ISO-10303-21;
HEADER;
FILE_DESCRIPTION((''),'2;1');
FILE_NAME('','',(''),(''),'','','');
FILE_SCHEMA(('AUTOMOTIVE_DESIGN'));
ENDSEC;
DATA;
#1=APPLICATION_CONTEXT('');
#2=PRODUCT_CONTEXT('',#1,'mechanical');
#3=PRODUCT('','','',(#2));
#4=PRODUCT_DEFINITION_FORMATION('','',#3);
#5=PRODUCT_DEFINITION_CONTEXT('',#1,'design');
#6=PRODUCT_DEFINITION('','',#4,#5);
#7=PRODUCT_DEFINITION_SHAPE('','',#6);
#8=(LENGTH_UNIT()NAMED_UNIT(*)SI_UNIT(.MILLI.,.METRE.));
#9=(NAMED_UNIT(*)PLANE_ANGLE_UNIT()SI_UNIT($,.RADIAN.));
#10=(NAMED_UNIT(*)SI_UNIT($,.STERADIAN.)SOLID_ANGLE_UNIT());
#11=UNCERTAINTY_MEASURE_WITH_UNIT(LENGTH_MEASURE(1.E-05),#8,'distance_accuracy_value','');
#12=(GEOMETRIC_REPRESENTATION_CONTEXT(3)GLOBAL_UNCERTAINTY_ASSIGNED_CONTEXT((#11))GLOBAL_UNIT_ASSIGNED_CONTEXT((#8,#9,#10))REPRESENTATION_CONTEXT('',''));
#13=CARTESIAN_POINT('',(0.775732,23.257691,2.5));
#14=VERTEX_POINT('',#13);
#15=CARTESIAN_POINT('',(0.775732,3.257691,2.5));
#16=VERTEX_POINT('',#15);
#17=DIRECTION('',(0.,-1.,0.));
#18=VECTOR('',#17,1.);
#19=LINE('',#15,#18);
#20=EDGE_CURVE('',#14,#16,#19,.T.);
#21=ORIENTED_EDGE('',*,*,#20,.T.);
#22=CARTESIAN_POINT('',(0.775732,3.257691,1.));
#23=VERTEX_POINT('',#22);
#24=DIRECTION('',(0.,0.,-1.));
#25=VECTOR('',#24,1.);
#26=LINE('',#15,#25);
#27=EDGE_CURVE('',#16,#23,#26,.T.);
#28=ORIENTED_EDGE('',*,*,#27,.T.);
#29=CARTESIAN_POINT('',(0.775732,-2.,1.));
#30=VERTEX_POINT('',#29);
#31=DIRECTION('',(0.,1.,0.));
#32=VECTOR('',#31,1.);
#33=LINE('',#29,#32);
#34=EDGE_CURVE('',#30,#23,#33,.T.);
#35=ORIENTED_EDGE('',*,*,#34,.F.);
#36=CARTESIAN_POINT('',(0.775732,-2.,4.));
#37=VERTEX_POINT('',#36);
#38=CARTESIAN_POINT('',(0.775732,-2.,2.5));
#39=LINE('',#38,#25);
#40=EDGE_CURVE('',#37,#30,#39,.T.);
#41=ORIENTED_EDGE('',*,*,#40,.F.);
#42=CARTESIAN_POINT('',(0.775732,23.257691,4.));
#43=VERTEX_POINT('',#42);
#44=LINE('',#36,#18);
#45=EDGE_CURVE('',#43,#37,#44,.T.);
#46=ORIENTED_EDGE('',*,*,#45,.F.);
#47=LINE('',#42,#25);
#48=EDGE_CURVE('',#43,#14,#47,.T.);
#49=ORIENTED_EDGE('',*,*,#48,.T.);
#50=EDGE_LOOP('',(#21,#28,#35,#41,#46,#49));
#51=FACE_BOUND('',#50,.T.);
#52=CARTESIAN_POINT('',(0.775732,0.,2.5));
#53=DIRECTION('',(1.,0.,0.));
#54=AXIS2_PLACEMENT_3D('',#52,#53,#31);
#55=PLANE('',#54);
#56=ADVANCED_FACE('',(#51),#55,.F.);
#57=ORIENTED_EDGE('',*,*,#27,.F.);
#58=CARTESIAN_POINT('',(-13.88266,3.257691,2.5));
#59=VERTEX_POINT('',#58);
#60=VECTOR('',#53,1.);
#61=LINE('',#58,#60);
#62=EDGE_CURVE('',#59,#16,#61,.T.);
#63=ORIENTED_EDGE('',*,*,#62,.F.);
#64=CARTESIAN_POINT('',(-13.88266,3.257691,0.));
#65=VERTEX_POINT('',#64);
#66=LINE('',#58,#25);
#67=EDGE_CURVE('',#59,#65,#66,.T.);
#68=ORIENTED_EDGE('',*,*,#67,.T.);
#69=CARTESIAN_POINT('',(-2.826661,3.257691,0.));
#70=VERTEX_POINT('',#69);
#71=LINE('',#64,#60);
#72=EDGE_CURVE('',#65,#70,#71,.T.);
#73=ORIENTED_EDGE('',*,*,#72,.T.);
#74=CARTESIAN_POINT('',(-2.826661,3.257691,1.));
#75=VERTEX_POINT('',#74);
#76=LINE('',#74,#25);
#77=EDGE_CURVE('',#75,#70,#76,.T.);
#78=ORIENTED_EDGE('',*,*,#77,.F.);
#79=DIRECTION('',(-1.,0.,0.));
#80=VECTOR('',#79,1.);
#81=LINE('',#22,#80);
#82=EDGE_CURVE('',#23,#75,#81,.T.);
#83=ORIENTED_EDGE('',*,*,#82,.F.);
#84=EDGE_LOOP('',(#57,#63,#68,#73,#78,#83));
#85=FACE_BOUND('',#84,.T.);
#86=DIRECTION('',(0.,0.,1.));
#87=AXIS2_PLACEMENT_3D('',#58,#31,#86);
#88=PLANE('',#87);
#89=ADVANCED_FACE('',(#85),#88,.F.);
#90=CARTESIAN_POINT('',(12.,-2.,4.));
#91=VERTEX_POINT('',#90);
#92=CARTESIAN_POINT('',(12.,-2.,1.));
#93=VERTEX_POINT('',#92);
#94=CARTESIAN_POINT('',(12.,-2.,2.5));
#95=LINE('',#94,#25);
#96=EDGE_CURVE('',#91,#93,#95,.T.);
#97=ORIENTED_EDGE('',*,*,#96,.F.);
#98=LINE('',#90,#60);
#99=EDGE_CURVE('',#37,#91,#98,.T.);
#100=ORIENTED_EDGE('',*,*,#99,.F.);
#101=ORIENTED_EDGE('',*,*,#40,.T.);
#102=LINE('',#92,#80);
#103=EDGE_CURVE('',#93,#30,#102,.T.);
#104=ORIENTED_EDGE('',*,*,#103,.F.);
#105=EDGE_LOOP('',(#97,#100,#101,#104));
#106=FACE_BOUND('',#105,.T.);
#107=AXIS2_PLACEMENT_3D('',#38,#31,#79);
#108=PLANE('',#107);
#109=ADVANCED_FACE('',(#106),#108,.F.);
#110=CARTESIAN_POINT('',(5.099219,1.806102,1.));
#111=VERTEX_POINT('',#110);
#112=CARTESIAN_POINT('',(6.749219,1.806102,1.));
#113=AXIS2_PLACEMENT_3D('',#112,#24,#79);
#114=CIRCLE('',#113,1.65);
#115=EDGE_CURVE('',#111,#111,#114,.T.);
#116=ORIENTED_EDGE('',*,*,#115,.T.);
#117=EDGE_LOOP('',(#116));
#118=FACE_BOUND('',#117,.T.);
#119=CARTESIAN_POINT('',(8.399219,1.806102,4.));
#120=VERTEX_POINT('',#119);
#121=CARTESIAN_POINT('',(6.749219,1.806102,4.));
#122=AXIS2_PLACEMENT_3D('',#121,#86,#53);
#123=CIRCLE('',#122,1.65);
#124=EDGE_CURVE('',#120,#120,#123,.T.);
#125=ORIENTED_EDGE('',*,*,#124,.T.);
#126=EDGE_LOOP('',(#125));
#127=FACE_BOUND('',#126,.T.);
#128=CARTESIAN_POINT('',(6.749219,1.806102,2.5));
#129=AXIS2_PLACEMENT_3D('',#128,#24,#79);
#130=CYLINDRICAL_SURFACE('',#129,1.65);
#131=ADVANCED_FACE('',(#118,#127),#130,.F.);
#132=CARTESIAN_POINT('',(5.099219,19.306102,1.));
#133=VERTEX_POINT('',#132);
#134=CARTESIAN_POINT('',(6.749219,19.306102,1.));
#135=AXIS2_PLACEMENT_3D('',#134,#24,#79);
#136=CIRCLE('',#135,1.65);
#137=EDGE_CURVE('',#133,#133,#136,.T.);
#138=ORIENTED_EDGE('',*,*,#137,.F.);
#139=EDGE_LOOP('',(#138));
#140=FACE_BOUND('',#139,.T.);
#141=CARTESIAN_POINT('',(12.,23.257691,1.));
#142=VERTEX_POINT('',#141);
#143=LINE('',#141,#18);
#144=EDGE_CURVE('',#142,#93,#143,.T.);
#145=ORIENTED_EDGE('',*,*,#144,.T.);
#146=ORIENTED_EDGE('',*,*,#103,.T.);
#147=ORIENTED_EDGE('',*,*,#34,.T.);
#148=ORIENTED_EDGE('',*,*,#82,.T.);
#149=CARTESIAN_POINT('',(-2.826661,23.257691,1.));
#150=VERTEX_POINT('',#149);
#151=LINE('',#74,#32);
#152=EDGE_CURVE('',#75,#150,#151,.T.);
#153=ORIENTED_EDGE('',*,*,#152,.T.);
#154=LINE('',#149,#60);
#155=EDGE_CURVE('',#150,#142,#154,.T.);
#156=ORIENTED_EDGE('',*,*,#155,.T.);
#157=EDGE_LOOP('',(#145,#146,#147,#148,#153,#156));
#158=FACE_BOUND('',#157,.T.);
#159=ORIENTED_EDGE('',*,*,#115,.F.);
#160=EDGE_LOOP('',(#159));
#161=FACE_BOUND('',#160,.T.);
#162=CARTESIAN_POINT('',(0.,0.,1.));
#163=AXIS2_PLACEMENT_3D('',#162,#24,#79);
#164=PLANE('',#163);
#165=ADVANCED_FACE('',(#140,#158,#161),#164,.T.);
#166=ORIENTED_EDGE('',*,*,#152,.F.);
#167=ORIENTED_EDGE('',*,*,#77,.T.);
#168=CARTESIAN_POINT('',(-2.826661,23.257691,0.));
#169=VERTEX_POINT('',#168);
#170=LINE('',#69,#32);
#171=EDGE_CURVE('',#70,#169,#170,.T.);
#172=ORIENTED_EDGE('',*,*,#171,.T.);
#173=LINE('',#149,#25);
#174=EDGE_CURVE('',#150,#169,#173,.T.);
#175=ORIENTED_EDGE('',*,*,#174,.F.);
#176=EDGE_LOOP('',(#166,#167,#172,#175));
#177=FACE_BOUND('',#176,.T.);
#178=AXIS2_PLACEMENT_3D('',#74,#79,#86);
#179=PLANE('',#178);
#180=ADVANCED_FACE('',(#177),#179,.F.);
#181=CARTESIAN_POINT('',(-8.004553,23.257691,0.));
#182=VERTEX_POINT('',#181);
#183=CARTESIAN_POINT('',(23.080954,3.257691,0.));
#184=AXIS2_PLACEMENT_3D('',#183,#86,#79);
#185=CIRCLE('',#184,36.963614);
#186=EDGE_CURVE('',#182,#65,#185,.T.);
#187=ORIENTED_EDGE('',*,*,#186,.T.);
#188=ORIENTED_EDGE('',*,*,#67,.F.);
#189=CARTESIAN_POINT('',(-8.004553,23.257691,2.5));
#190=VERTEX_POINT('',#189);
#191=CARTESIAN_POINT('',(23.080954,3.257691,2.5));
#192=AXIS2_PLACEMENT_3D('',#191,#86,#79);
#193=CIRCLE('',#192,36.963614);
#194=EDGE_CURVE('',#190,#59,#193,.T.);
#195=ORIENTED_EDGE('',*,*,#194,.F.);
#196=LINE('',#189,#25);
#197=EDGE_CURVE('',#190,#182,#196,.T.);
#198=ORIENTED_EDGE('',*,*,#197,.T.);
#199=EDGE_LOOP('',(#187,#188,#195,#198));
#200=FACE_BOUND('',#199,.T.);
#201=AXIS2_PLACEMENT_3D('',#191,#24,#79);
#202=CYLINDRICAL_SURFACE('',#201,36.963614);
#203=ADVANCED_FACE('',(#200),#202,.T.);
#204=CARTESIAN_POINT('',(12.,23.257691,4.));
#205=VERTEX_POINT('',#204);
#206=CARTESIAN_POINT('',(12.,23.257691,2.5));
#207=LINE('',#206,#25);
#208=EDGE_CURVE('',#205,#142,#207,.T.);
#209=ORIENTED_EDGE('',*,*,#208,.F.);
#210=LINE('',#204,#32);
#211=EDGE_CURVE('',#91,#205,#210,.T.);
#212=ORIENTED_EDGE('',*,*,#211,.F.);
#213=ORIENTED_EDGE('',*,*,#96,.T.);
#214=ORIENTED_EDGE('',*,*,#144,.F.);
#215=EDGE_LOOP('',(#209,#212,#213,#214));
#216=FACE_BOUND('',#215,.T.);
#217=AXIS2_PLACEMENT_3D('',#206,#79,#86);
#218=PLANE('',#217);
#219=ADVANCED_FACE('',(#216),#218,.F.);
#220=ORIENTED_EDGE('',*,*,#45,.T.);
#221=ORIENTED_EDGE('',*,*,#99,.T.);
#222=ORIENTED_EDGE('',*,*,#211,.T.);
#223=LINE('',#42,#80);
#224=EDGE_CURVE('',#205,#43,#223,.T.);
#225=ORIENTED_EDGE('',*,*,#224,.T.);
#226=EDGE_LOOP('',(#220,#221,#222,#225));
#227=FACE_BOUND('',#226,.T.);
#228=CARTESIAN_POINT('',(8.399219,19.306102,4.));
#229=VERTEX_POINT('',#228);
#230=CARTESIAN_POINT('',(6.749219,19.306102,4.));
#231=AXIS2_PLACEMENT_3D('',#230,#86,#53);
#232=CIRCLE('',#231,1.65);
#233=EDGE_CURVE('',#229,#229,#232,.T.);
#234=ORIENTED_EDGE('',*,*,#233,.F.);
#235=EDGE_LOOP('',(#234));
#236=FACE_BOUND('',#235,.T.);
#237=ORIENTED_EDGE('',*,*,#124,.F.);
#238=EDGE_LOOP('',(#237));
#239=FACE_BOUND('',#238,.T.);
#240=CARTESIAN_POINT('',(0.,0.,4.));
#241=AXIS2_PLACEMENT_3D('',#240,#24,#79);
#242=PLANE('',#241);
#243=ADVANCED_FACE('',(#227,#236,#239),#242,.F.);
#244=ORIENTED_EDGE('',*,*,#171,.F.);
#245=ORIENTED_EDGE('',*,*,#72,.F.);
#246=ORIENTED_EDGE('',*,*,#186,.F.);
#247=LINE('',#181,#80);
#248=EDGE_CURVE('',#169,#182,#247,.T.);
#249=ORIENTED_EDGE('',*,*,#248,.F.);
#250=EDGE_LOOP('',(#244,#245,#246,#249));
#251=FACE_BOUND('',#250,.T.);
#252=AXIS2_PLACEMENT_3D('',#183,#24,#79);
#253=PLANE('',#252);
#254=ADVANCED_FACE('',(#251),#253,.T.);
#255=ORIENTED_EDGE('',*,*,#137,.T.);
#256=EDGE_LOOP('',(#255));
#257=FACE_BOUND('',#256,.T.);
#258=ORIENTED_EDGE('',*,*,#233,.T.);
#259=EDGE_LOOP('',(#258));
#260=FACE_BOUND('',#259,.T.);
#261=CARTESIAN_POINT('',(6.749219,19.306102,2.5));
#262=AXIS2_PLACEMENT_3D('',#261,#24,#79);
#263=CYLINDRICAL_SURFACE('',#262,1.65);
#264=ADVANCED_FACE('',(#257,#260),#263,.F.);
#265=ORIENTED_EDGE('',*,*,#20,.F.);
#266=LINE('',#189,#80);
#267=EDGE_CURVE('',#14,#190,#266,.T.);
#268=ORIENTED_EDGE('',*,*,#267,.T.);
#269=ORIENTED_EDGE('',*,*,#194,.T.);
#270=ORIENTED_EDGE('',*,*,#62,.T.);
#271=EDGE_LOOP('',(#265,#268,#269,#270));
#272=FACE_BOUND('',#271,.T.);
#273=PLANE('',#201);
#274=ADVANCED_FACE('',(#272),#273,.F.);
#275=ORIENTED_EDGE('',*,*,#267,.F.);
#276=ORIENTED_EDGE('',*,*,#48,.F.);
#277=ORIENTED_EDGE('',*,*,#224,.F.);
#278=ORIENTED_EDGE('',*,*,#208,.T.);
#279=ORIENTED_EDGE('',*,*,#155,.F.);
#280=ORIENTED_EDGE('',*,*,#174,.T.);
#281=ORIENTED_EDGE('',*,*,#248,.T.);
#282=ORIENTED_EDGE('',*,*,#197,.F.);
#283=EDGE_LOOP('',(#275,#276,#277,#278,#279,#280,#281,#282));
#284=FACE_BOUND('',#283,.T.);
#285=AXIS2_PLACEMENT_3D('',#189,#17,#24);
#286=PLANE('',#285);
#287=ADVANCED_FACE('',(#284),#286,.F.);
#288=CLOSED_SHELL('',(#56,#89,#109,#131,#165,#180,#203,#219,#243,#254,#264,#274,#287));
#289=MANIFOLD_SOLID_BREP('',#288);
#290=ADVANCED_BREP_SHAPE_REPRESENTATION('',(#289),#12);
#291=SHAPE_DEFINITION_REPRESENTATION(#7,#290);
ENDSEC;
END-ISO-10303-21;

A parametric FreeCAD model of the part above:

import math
import FreeCAD as App
import Part
import Sketcher
Q = App.Units.Quantity


def add_polygon(sketch, points):
    """Adds a closed chain of lines whose ends are joined by coincident constraints."""
    first, n = sketch.GeometryCount, len(points)
    for a, b in zip(points, points[1:] + points[:1]):
        sketch.addGeometry(Part.LineSegment(App.Vector(*a, 0), App.Vector(*b, 0)), False)
    for i in range(n):
        sketch.addConstraint(Sketcher.Constraint("Coincident", first + i, 2, first + (i + 1) % n, 1))

doc = App.newDocument("Part")
body = doc.addObject("PartDesign::Body", "Body")

sketch1 = doc.addObject("Sketcher::SketchObject", "Sketch")
body.addObject(sketch1)
sketch1.AttachmentSupport = (doc.XY_Plane, [""])
sketch1.MapMode = "FlatFace"
sketch1.addGeometry([
    Part.LineSegment(App.Vector(12, 23.3, 0), App.Vector(-8, 23.3, 0)),
    Part.ArcOfCircle(Part.Circle(App.Vector(23.1, 3.3, 0), App.Vector(0, 0, 1), 37), math.radians(147), math.radians(180)),
    Part.LineSegment(App.Vector(-13.9, 3.3, 0), App.Vector(0.8, 3.3, 0)),
    Part.LineSegment(App.Vector(0.8, 3.3, 0), App.Vector(0.8, -2, 0)),
    Part.LineSegment(App.Vector(0.8, -2, 0), App.Vector(12, -2, 0)),
    Part.LineSegment(App.Vector(12, -2, 0), App.Vector(12, 23.3, 0)),
    Part.Circle(App.Vector(6.7, 1.8, 0), App.Vector(0, 0, 1), 1.6),
    Part.Circle(App.Vector(6.7, 19.3, 0), App.Vector(0, 0, 1), 1.6),
], False)
sketch1.addConstraint([
    Sketcher.Constraint("Coincident", 0, 2, 1, 1),
    Sketcher.Constraint("Coincident", 1, 2, 2, 1),
    Sketcher.Constraint("Coincident", 2, 2, 3, 1),
    Sketcher.Constraint("Coincident", 3, 2, 4, 1),
    Sketcher.Constraint("Coincident", 4, 2, 5, 1),
    Sketcher.Constraint("Coincident", 5, 2, 0, 1),
    Sketcher.Constraint("Horizontal", 0),
    Sketcher.Constraint("Horizontal", 2),
    Sketcher.Constraint("Vertical", 3),
    Sketcher.Constraint("Horizontal", 4),
    Sketcher.Constraint("Vertical", 5),
    Sketcher.Constraint("Equal", 6, 7),
    Sketcher.Constraint("Vertical", 6, 3, 7, 3),
    Sketcher.Constraint("Diameter", 6, Q("3.3 mm")),
    Sketcher.Constraint("DistanceY", 3, 2, -1, 1, Q("2 mm")),
    Sketcher.Constraint("DistanceX", -1, 1, 4, 2, Q("12 mm")),
    Sketcher.Constraint("DistanceY", 1, 3, 0, 2, Q("20 mm")),
    Sketcher.Constraint("DistanceY", 1, 2, 0, 2, Q("20 mm")),
    Sketcher.Constraint("DistanceY", 6, 3, 7, 3, Q("17.5 mm")),
    Sketcher.Constraint("Radius", 1, Q("36.963614 mm")),
    Sketcher.Constraint("DistanceX", 2, 1, 2, 2, Q("14.658392 mm")),
    Sketcher.Constraint("DistanceX", 4, 1, 4, 2, Q("11.224268 mm")),
    Sketcher.Constraint("DistanceY", 3, 2, 3, 1, Q("5.257691 mm")),
    Sketcher.Constraint("DistanceY", -1, 1, 6, 3, Q("1.806102 mm")),
    Sketcher.Constraint("DistanceX", -1, 1, 6, 3, Q("6.749219 mm")),
])
pad1 = doc.addObject("PartDesign::Pad", "Pad")
body.addObject(pad1)
pad1.Profile = sketch1
pad1.Length = 2.5

sketch2 = doc.addObject("Sketcher::SketchObject", "Sketch001")
body.addObject(sketch2)
sketch2.AttachmentSupport = (doc.XY_Plane, [""])
sketch2.MapMode = "FlatFace"
sketch2.AttachmentOffset = App.Placement(App.Vector(0, 0, 2.5), App.Rotation())
add_polygon(sketch2, [(0.8, 23.3), (0.8, -2), (12, -2), (12, 23.3)])
sketch2.addGeometry(Part.Circle(App.Vector(6.7, 1.8, 0), App.Vector(0, 0, 1), 1.6), False)
sketch2.addGeometry(Part.Circle(App.Vector(6.7, 19.3, 0), App.Vector(0, 0, 1), 1.6), False)
sketch2.addConstraint([
    Sketcher.Constraint("Vertical", 0),
    Sketcher.Constraint("Horizontal", 1),
    Sketcher.Constraint("Vertical", 2),
    Sketcher.Constraint("Horizontal", 3),
    Sketcher.Constraint("Equal", 4, 5),
    Sketcher.Constraint("Vertical", 4, 3, 5, 3),
    Sketcher.Constraint("Diameter", 4, Q("3.3 mm")),
    Sketcher.Constraint("DistanceY", 0, 2, -1, 1, Q("2 mm")),
    Sketcher.Constraint("DistanceX", -1, 1, 1, 2, Q("12 mm")),
    Sketcher.Constraint("DistanceY", 4, 3, 5, 3, Q("17.5 mm")),
    Sketcher.Constraint("DistanceX", 1, 1, 1, 2, Q("11.224268 mm")),
    Sketcher.Constraint("DistanceY", 0, 2, 0, 1, Q("25.257691 mm")),
    Sketcher.Constraint("DistanceY", -1, 1, 4, 3, Q("1.806102 mm")),
    Sketcher.Constraint("DistanceX", -1, 1, 4, 3, Q("6.749219 mm")),
])
pad2 = doc.addObject("PartDesign::Pad", "Pad001")
body.addObject(pad2)
pad2.Profile = sketch2
pad2.Length = 1.5

sketch3 = doc.addObject("Sketcher::SketchObject", "Sketch002")
body.addObject(sketch3)
sketch3.AttachmentSupport = (doc.XY_Plane, [""])
sketch3.MapMode = "FlatFace"
add_polygon(sketch3, [(12, 23.3), (12, -2), (0.8, -2), (0.8, 3.3), (-2.8, 3.3), (-2.8, 23.3)])
sketch3.addConstraint([
    Sketcher.Constraint("Vertical", 0),
    Sketcher.Constraint("Horizontal", 1),
    Sketcher.Constraint("Vertical", 2),
    Sketcher.Constraint("Horizontal", 3),
    Sketcher.Constraint("Vertical", 4),
    Sketcher.Constraint("Horizontal", 5),
    Sketcher.Constraint("DistanceY", 4, 1, 4, 2, Q("20 mm")),
    Sketcher.Constraint("DistanceX", -1, 1, 0, 2, Q("12 mm")),
    Sketcher.Constraint("DistanceY", 0, 2, -1, 1, Q("2 mm")),
    Sketcher.Constraint("DistanceX", 1, 2, 1, 1, Q("11.224268 mm")),
    Sketcher.Constraint("DistanceX", 5, 1, 5, 2, Q("14.826661 mm")),
    Sketcher.Constraint("DistanceY", 0, 2, 0, 1, Q("25.257691 mm")),
])
pocket1 = doc.addObject("PartDesign::Pocket", "Pocket")
body.addObject(pocket1)
pocket1.Profile = sketch3
pocket1.Length = 1
pocket1.Reversed = True

doc.recompute()
